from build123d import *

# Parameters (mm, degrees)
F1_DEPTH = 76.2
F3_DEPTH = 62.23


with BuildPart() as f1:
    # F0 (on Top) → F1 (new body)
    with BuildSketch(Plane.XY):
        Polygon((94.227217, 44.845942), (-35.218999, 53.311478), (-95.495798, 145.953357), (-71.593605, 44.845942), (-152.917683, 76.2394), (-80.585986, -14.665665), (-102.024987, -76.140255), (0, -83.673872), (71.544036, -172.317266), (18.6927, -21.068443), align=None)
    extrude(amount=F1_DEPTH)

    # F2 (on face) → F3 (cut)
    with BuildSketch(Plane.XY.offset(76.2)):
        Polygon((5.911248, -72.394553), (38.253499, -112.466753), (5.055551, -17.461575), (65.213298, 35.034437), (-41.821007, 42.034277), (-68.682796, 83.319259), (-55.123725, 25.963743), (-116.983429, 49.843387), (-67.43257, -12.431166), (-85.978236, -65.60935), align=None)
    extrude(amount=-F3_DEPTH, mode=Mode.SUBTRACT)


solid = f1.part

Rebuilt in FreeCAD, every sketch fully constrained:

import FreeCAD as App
import Part
import Sketcher

V = App.Vector
Q = App.Units.Quantity

doc = App.newDocument("Part")
params = doc.addObject("Spreadsheet::Sheet", "Params")
for row, (alias, value) in enumerate([
    ("pad1_length", "3 in"),
    ("pocket1_length", "2.45 in"),
], start=1):
    params.set(f"A{row}", alias)
    params.set(f"B{row}", "=" + value)
    params.setAlias(f"B{row}", alias)

body = doc.addObject("PartDesign::Body", "Body")

sketch1 = body.newObject("Sketcher::SketchObject", "Sketch")
sketch1.AttachmentSupport = (doc.getObject("XY_Plane"), [""])
sketch1.MapMode = "FlatFace"
sketch1.addGeometry([
    Part.LineSegment(V(94, 45, 0), V(-35, 53, 0)),
    Part.LineSegment(V(-35, 53, 0), V(-95, 146, 0)),
    Part.LineSegment(V(-95, 146, 0), V(-72, 45, 0)),
    Part.LineSegment(V(-72, 45, 0), V(-153, 76, 0)),
    Part.LineSegment(V(-153, 76, 0), V(-81, -15, 0)),
    Part.LineSegment(V(-81, -15, 0), V(-102, -76, 0)),
    Part.LineSegment(V(-102, -76, 0), V(0, -84, 0)),
    Part.LineSegment(V(0, -84, 0), V(72, -172, 0)),
    Part.LineSegment(V(72, -172, 0), V(19, -21, 0)),
    Part.LineSegment(V(19, -21, 0), V(94, 45, 0)),
], False)
sketch1.addConstraint([
    Sketcher.Constraint("Coincident", 0, 2, 1, 1),
    Sketcher.Constraint("Coincident", 1, 2, 2, 1),
    Sketcher.Constraint("Coincident", 2, 2, 3, 1),
    Sketcher.Constraint("Coincident", 3, 2, 4, 1),
    Sketcher.Constraint("Coincident", 4, 2, 5, 1),
    Sketcher.Constraint("Coincident", 5, 2, 6, 1),
    Sketcher.Constraint("Coincident", 6, 2, 7, 1),
    Sketcher.Constraint("Coincident", 7, 2, 8, 1),
    Sketcher.Constraint("Coincident", 8, 2, 9, 1),
    Sketcher.Constraint("Coincident", 9, 2, 0, 1),
    Sketcher.Constraint("PointOnObject", 6, 2, -2),
    Sketcher.Constraint("Horizontal", 2, 2, 9, 2),
    Sketcher.Constraint("DistanceX", 8, 2, 9, 2, Q("2.9737999 in")),
    Sketcher.Constraint("DistanceX", 0, 2, -1, 1, Q("35.218999 mm")),
    Sketcher.Constraint("DistanceY", -1, 1, 3, 2, Q("76.2394 mm")),
    Sketcher.Constraint("DistanceX", -1, 1, 8, 2, Q("18.6927 mm")),
    Sketcher.Constraint("DistanceX", 1, 2, 0, 2, Q("60.276799 mm")),
    Sketcher.Constraint("DistanceX", 5, 2, 4, 2, Q("21.439001 mm")),
    Sketcher.Constraint("DistanceY", 7, 2, 4, 2, Q("157.651601 mm")),
    Sketcher.Constraint("Distance", 3, Q("87.173132 mm")),
    Sketcher.Constraint("Distance", 5, Q("65.105729 mm")),
    Sketcher.Constraint("DistanceY", 0, 2, 1, 2, Q("92.641879 mm")),
    Sketcher.Constraint("DistanceX", 3, 2, 2, 2, Q("81.324078 mm")),
    Sketcher.Constraint("DistanceX", 4, 2, 2, 2, Q("8.992381 mm")),
    Sketcher.Constraint("DistanceX", 1, 2, 4, 2, Q("14.909812 mm")),
    Sketcher.Constraint("DistanceY", 4, 2, 1, 2, Q("160.619022 mm")),
    Sketcher.Constraint("DistanceY", 6, 2, 0, 2, Q("136.98535 mm")),
    Sketcher.Constraint("DistanceY", 6, 2, 3, 2, Q("159.913272 mm")),
    Sketcher.Constraint("DistanceX", 4, 2, 7, 2, Q("152.130022 mm")),
    Sketcher.Constraint("DistanceY", 6, 2, 8, 2, Q("62.605429 mm")),
])
pad1 = body.newObject("PartDesign::Pad", "Pad")
pad1.Profile = sketch1
pad1.setExpression("Length", "Params.pad1_length")

sketch2 = body.newObject("Sketcher::SketchObject", "Sketch001")
sketch2.AttachmentSupport = (doc.getObject("XY_Plane"), [""])
sketch2.MapMode = "FlatFace"
sketch2.AttachmentOffset = App.Placement(V(0, 0, 3 * 25.4), App.Rotation())
sketch2.addGeometry([
    Part.LineSegment(V(6, -72, 0), V(38, -112, 0)),
    Part.LineSegment(V(38, -112, 0), V(5, -17, 0)),
    Part.LineSegment(V(5, -17, 0), V(65, 35, 0)),
    Part.LineSegment(V(65, 35, 0), V(-42, 42, 0)),
    Part.LineSegment(V(-42, 42, 0), V(-69, 83, 0)),
    Part.LineSegment(V(-69, 83, 0), V(-55, 26, 0)),
    Part.LineSegment(V(-55, 26, 0), V(-117, 50, 0)),
    Part.LineSegment(V(-117, 50, 0), V(-67, -12, 0)),
    Part.LineSegment(V(-67, -12, 0), V(-86, -66, 0)),
    Part.LineSegment(V(-86, -66, 0), V(6, -72, 0)),
], False)
sketch2.addConstraint([
    Sketcher.Constraint("Coincident", 0, 2, 1, 1),
    Sketcher.Constraint("Coincident", 1, 2, 2, 1),
    Sketcher.Constraint("Coincident", 2, 2, 3, 1),
    Sketcher.Constraint("Coincident", 3, 2, 4, 1),
    Sketcher.Constraint("Coincident", 4, 2, 5, 1),
    Sketcher.Constraint("Coincident", 5, 2, 6, 1),
    Sketcher.Constraint("Coincident", 6, 2, 7, 1),
    Sketcher.Constraint("Coincident", 7, 2, 8, 1),
    Sketcher.Constraint("Coincident", 8, 2, 9, 1),
    Sketcher.Constraint("Coincident", 9, 2, 0, 1),
    Sketcher.Constraint("DistanceX", 7, 2, 5, 2, Q("0.4846002 in")),
    Sketcher.Constraint("Distance", 1, Q("100.6384 mm")),
    Sketcher.Constraint("DistanceX", -1, 1, 0, 2, Q("38.253499 mm")),
    Sketcher.Constraint("DistanceX", 0, 2, 2, 2, Q("26.959799 mm")),
    Sketcher.Constraint("DistanceY", 0, 2, 9, 2, Q("40.0722 mm")),
    Sketcher.Constraint("Distance", 3, Q("107.262949 mm")),
    Sketcher.Constraint("Distance", 7, Q("79.582709 mm")),
    Sketcher.Constraint("DistanceX", -1, 1, 1, 2, Q("5.055551 mm")),
    Sketcher.Constraint("DistanceY", -1, 1, 4, 2, Q("83.319259 mm")),
    Sketcher.Constraint("DistanceX", 6, 2, -1, 1, Q("116.983429 mm")),
    Sketcher.Constraint("DistanceX", 7, 2, -1, 1, Q("67.43257 mm")),
    Sketcher.Constraint("DistanceY", 8, 2, -1, 1, Q("65.60935 mm")),
    Sketcher.Constraint("DistanceY", 1, 2, 2, 2, Q("52.496012 mm")),
    Sketcher.Constraint("DistanceX", 3, 2, 1, 2, Q("46.876558 mm")),
    Sketcher.Constraint("DistanceX", 4, 2, 3, 2, Q("26.861789 mm")),
    Sketcher.Constraint("DistanceY", 0, 2, 4, 2, Q("195.786012 mm")),
    Sketcher.Constraint("DistanceY", 1, 2, 5, 2, Q("43.425318 mm")),
    Sketcher.Constraint("DistanceY", 3, 2, 6, 2, Q("7.80911 mm")),
    Sketcher.Constraint("DistanceX", 8, 2, 5, 2, Q("30.854511 mm")),
    Sketcher.Constraint("DistanceX", 9, 2, 0, 2, Q("32.342251 mm")),
])
pocket1 = body.newObject("PartDesign::Pocket", "Pocket")
pocket1.Profile = sketch2
pocket1.setExpression("Length", "Params.pocket1_length")

doc.recompute()
